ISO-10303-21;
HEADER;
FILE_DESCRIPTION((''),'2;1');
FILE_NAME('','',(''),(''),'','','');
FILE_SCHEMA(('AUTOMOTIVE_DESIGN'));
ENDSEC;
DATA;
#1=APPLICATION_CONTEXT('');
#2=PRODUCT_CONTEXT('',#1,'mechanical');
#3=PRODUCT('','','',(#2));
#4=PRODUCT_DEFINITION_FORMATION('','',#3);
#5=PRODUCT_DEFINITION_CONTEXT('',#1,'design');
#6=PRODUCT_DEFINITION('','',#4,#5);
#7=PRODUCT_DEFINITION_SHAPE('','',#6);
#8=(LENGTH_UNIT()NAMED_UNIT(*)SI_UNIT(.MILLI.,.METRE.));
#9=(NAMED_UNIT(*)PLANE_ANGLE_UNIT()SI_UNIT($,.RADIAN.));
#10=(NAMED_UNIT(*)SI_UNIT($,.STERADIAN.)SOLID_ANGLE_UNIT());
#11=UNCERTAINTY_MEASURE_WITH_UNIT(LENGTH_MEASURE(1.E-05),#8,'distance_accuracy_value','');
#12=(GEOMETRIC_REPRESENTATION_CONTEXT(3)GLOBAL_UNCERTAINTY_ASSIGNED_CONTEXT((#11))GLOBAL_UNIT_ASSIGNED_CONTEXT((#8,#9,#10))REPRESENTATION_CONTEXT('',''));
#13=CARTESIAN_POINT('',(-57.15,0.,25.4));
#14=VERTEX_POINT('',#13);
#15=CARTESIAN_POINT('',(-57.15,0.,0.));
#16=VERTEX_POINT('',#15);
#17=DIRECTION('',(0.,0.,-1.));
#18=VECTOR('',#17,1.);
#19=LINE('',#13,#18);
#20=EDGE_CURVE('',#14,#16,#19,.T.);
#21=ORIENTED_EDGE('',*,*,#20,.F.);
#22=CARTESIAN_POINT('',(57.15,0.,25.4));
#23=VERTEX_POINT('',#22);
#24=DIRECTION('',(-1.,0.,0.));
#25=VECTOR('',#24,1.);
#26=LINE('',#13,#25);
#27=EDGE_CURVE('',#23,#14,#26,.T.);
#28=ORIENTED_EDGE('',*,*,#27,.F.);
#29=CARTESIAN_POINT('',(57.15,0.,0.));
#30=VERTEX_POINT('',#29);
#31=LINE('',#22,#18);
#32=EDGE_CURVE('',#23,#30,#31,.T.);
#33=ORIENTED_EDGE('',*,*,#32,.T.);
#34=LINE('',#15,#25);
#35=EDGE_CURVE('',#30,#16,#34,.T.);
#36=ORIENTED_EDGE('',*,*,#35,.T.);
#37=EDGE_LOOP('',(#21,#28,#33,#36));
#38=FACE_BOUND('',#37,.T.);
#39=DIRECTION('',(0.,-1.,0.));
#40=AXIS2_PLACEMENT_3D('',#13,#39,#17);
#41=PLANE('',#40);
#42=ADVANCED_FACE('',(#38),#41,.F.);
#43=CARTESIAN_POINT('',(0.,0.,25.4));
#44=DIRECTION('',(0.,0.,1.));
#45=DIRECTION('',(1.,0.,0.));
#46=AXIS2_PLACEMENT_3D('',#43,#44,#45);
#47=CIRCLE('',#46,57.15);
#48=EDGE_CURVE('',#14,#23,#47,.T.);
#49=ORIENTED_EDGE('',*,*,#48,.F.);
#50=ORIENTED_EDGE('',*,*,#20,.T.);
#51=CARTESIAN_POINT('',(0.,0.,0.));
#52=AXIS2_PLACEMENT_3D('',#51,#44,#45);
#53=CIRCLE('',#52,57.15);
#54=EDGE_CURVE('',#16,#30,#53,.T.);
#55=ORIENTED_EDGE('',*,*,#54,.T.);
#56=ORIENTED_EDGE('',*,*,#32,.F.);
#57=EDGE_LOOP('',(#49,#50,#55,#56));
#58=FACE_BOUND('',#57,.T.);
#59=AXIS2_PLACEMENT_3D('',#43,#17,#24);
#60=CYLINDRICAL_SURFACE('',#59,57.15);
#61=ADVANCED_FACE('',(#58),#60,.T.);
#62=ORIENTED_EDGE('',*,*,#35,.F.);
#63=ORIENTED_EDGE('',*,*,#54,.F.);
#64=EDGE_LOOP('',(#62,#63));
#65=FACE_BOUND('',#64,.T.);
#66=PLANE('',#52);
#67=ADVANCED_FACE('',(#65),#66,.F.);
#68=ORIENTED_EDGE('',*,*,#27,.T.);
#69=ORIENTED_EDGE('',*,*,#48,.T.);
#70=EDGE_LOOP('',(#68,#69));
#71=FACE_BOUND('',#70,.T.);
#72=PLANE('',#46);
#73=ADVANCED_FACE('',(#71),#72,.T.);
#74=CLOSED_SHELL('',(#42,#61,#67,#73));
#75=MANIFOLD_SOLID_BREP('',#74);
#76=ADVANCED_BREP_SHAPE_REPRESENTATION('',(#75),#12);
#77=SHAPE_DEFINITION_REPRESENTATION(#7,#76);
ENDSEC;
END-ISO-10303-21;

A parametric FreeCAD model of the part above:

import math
import FreeCAD as App
import Part
import Sketcher

V = App.Vector
Q = App.Units.Quantity

doc = App.newDocument("Part")
body = doc.addObject("PartDesign::Body", "Body")

sketch1 = body.newObject("Sketcher::SketchObject", "Sketch")
sketch1.AttachmentSupport = (doc.getObject("XY_Plane"), [""])
sketch1.MapMode = "FlatFace"
sketch1.addGeometry([
    Part.LineSegment(V(57, 0, 0), V(-57, 0, 0)),
    Part.ArcOfCircle(Part.Circle(V(0, 0, 0), V(0, 0, 1), 57), math.radians(180), math.radians(360)),
], False)
sketch1.addConstraint([
    Sketcher.Constraint("Coincident", 0, 1, 1, 2),
    Sketcher.Constraint("Coincident", 1, 1, 0, 2),
    Sketcher.Constraint("Horizontal", 0),
    Sketcher.Constraint("Coincident", 1, 3, -1, 1),
    Sketcher.Constraint("PointOnObject", 0, 1, -1),
    Sketcher.Constraint("Radius", 1, Q("2.25 in")),
])
pad1 = body.newObject("PartDesign::Pad", "Pad")
pad1.Profile = sketch1
pad1.Length = Q("1 in")

doc.recompute()
